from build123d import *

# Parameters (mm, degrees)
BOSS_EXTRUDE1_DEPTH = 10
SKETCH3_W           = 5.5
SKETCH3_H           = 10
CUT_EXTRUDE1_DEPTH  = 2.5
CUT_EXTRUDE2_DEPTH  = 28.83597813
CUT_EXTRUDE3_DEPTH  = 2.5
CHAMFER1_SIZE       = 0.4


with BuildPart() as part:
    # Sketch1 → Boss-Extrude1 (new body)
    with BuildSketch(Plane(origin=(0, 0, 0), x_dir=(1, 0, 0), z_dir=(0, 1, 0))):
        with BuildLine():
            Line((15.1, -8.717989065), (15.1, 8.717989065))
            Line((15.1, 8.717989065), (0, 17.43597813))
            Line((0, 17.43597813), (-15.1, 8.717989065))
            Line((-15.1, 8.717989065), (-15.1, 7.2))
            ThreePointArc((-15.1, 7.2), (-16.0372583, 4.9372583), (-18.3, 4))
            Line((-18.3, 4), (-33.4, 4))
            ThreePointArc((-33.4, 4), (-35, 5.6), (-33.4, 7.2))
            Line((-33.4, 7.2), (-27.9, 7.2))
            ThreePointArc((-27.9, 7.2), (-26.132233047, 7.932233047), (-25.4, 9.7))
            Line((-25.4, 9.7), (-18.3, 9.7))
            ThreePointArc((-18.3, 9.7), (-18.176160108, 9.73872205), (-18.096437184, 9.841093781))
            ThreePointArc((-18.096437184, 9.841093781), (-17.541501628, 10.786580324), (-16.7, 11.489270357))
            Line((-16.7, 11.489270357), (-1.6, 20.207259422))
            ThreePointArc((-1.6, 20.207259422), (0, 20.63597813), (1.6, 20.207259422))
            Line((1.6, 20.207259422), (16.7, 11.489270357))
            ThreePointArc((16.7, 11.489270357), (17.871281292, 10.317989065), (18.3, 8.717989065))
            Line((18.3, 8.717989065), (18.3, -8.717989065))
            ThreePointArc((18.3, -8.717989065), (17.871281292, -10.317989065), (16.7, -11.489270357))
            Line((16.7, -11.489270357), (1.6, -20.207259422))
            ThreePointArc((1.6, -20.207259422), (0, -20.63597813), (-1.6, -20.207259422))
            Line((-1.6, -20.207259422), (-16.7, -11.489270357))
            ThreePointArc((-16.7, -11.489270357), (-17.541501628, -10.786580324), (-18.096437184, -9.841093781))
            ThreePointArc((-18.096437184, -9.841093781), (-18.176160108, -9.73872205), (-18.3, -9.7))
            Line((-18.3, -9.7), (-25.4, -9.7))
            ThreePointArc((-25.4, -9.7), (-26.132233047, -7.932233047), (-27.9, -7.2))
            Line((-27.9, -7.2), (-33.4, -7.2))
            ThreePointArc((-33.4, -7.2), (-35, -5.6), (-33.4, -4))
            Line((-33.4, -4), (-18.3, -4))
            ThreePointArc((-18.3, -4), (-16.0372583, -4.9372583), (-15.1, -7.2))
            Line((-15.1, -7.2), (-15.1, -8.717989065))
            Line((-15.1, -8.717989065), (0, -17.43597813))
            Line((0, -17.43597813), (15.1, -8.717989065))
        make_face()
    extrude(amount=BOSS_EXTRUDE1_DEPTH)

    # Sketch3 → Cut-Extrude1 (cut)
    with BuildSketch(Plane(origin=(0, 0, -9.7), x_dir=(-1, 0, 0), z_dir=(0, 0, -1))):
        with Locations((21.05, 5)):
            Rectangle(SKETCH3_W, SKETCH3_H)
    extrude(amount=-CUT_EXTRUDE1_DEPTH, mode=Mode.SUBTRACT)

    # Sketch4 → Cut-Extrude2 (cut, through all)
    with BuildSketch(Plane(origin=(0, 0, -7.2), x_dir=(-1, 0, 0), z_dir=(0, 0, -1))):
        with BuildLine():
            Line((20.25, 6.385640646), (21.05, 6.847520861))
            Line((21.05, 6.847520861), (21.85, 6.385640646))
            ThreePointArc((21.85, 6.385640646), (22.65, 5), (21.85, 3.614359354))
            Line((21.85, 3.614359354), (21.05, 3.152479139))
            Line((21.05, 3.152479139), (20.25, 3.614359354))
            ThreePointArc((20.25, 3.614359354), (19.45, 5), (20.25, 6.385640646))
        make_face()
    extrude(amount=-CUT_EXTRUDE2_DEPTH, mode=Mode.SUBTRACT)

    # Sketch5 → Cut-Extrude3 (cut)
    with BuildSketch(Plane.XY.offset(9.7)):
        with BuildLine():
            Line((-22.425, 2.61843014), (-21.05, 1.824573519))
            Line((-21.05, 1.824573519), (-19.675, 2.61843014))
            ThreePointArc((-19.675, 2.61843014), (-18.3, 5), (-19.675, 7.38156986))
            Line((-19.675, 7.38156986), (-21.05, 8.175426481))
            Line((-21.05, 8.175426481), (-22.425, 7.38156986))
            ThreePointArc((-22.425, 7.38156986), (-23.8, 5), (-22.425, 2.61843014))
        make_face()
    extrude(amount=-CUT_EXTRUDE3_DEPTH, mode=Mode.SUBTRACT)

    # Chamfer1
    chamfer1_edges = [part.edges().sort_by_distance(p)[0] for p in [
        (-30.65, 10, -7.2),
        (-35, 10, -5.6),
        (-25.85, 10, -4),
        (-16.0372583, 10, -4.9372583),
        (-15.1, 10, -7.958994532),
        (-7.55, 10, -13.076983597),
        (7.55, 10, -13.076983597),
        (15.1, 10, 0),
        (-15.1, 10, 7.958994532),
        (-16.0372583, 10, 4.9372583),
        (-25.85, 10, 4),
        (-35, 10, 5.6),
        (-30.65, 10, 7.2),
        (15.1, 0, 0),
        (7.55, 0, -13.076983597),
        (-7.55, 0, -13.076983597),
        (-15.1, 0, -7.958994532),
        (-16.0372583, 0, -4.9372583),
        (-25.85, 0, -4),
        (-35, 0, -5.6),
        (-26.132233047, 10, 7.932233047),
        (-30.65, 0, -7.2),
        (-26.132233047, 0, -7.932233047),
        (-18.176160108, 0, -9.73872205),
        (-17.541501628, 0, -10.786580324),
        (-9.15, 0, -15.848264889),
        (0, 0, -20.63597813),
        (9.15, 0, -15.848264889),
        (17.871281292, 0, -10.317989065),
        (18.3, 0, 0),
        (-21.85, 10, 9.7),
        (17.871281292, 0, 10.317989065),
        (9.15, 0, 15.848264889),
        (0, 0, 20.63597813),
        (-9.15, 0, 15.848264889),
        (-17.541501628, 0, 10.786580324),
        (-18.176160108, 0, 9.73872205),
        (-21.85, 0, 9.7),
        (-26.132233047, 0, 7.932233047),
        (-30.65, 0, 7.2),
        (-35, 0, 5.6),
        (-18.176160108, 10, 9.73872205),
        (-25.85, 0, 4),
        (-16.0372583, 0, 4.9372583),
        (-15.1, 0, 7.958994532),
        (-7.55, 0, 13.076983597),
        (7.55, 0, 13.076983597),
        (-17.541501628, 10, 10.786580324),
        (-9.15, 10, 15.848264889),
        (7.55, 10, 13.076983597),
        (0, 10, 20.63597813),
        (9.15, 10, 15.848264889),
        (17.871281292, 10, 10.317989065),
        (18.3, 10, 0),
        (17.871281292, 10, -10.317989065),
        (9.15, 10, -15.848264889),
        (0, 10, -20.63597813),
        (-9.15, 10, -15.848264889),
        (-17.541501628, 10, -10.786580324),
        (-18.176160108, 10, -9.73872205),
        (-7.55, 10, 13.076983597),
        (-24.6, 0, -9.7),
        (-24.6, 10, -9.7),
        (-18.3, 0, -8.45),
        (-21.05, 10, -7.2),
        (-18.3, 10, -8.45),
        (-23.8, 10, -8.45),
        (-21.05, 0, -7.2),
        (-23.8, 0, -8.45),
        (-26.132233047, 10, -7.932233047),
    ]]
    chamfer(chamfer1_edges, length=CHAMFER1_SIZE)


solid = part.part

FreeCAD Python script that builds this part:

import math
import FreeCAD as App
import Part
import Sketcher
from FreeCAD import Vector
Q = App.Units.Quantity


def edges_at(feature, points):
    """Names of the edges that pass closest to the given points."""
    edges = feature.Shape.Edges
    near = lambda p: min(range(len(edges)), key=lambda i: edges[i].distToShape(Part.Vertex(*p))[0])
    return sorted({f"Edge{near(p) + 1}" for p in points})

doc = App.newDocument("Part")
body = doc.addObject("PartDesign::Body", "Body")

# Sketch on XZ plane
sketch1 = body.newObject("Sketcher::SketchObject", "Sketch")
sketch1.AttachmentSupport = (doc.getObject("XZ_Plane"), [""])
sketch1.MapMode = "FlatFace"
sketch1.addGeometry([
    Part.LineSegment(Vector(15.1, -8.717989, 0), Vector(15.1, 8.717989, 0)),  # 0
    Part.LineSegment(Vector(15.1, 8.717989, 0), Vector(0, 17.435978, 0)),  # 1
    Part.LineSegment(Vector(0, 17.435978, 0), Vector(-15.1, 8.717989, 0)),  # 2
    Part.LineSegment(Vector(-15.1, 8.717989, 0), Vector(-15.1, 7.2, 0)),  # 3
    Part.ArcOfCircle(Part.Circle(Vector(-18.3, 7.2, 0), Vector(0, 0, 1), 3.2), math.radians(-90), math.radians(0)),  # 4
    Part.LineSegment(Vector(-18.3, 4, 0), Vector(-33.4, 4, 0)),  # 5
    Part.ArcOfCircle(Part.Circle(Vector(-33.4, 5.6, 0), Vector(0, 0, 1), 1.6), math.radians(90), math.radians(270)),  # 6
    Part.LineSegment(Vector(-33.4, 7.2, 0), Vector(-27.9, 7.2, 0)),  # 7
    Part.ArcOfCircle(Part.Circle(Vector(-27.9, 9.7, 0), Vector(0, 0, 1), 2.5), math.radians(-90), math.radians(0)),  # 8
    Part.LineSegment(Vector(-25.4, 9.7, 0), Vector(-18.3, 9.7, 0)),  # 9
    Part.ArcOfCircle(Part.Circle(Vector(-18.3, 9.917392, 0), Vector(0, 0, 1), 0.217392), math.radians(-90), math.radians(-20.54667)),  # 10
    Part.ArcOfCircle(Part.Circle(Vector(-15.1, 8.717989, 0), Vector(0, 0, 1), 3.2), math.radians(120), math.radians(159.45333)),  # 11
    Part.LineSegment(Vector(-16.7, 11.48927, 0), Vector(-1.6, 20.207259, 0)),  # 12
    Part.ArcOfCircle(Part.Circle(Vector(0, 17.435978, 0), Vector(0, 0, 1), 3.2), math.radians(60), math.radians(120)),  # 13
    Part.LineSegment(Vector(1.6, 20.207259, 0), Vector(16.7, 11.48927, 0)),  # 14
    Part.ArcOfCircle(Part.Circle(Vector(15.1, 8.717989, 0), Vector(0, 0, 1), 3.2), math.radians(0), math.radians(60)),  # 15
    Part.LineSegment(Vector(18.3, 8.717989, 0), Vector(18.3, -8.717989, 0)),  # 16
    Part.ArcOfCircle(Part.Circle(Vector(15.1, -8.717989, 0), Vector(0, 0, 1), 3.2), math.radians(-60), math.radians(0)),  # 17
    Part.LineSegment(Vector(16.7, -11.48927, 0), Vector(1.6, -20.207259, 0)),  # 18
    Part.ArcOfCircle(Part.Circle(Vector(0, -17.435978, 0), Vector(0, 0, 1), 3.2), math.radians(-120), math.radians(-60)),  # 19
    Part.LineSegment(Vector(-1.6, -20.207259, 0), Vector(-16.7, -11.48927, 0)),  # 20
    Part.ArcOfCircle(Part.Circle(Vector(-15.1, -8.717989, 0), Vector(0, 0, 1), 3.2), math.radians(-159.45333), math.radians(-120)),  # 21
    Part.ArcOfCircle(Part.Circle(Vector(-18.3, -9.917392, 0), Vector(0, 0, 1), 0.217392), math.radians(20.54667), math.radians(90)),  # 22
    Part.LineSegment(Vector(-18.3, -9.7, 0), Vector(-25.4, -9.7, 0)),  # 23
    Part.ArcOfCircle(Part.Circle(Vector(-27.9, -9.7, 0), Vector(0, 0, 1), 2.5), math.radians(0), math.radians(90)),  # 24
    Part.LineSegment(Vector(-27.9, -7.2, 0), Vector(-33.4, -7.2, 0)),  # 25
    Part.ArcOfCircle(Part.Circle(Vector(-33.4, -5.6, 0), Vector(0, 0, 1), 1.6), math.radians(90), math.radians(270)),  # 26
    Part.LineSegment(Vector(-33.4, -4, 0), Vector(-18.3, -4, 0)),  # 27
    Part.ArcOfCircle(Part.Circle(Vector(-18.3, -7.2, 0), Vector(0, 0, 1), 3.2), math.radians(0), math.radians(90)),  # 28
    Part.LineSegment(Vector(-15.1, -7.2, 0), Vector(-15.1, -8.717989, 0)),  # 29
    Part.LineSegment(Vector(-15.1, -8.717989, 0), Vector(0, -17.435978, 0)),  # 30
    Part.LineSegment(Vector(0, -17.435978, 0), Vector(15.1, -8.717989, 0)),  # 31
], False)
sketch1.addConstraint([
    Sketcher.Constraint("Coincident", 0, 2, 1, 1),
    Sketcher.Constraint("Coincident", 1, 2, 2, 1),
    Sketcher.Constraint("Coincident", 2, 2, 3, 1),
    Sketcher.Constraint("Tangent", 3, 2, 4, 2),
    Sketcher.Constraint("Tangent", 4, 1, 5, 1),
    Sketcher.Constraint("Tangent", 5, 2, 6, 2),
    Sketcher.Constraint("Tangent", 6, 1, 7, 1),
    Sketcher.Constraint("Tangent", 7, 2, 8, 1),
    Sketcher.Constraint("Coincident", 8, 2, 9, 1),
    Sketcher.Constraint("Tangent", 9, 2, 10, 1),
    Sketcher.Constraint("Tangent", 10, 2, 11, 2),
    Sketcher.Constraint("Tangent", 11, 1, 12, 1),
    Sketcher.Constraint("Tangent", 12, 2, 13, 2),
    Sketcher.Constraint("Tangent", 13, 1, 14, 1),
    Sketcher.Constraint("Tangent", 14, 2, 15, 2),
    Sketcher.Constraint("Tangent", 15, 1, 16, 1),
    Sketcher.Constraint("Tangent", 16, 2, 17, 2),
    Sketcher.Constraint("Tangent", 17, 1, 18, 1),
    Sketcher.Constraint("Tangent", 18, 2, 19, 2),
    Sketcher.Constraint("Tangent", 19, 1, 20, 1),
    Sketcher.Constraint("Tangent", 20, 2, 21, 2),
    Sketcher.Constraint("Tangent", 21, 1, 22, 1),
    Sketcher.Constraint("Tangent", 22, 2, 23, 1),
    Sketcher.Constraint("Coincident", 23, 2, 24, 1),
    Sketcher.Constraint("Tangent", 24, 2, 25, 1),
    Sketcher.Constraint("Tangent", 25, 2, 26, 2),
    Sketcher.Constraint("Tangent", 26, 1, 27, 1),
    Sketcher.Constraint("Tangent", 27, 2, 28, 2),
    Sketcher.Constraint("Tangent", 28, 1, 29, 1),
    Sketcher.Constraint("Coincident", 29, 2, 30, 1),
    Sketcher.Constraint("Coincident", 30, 2, 31, 1),
    Sketcher.Constraint("Coincident", 31, 2, 0, 1),
    Sketcher.Constraint("Vertical", 0),
    Sketcher.Constraint("Vertical", 3),
    Sketcher.Constraint("Horizontal", 5),
    Sketcher.Constraint("Horizontal", 7),
    Sketcher.Constraint("Horizontal", 9),
    Sketcher.Constraint("Vertical", 16),
    Sketcher.Constraint("Horizontal", 23),
    Sketcher.Constraint("Horizontal", 25),
    Sketcher.Constraint("Horizontal", 27),
    Sketcher.Constraint("Vertical", 29),
    Sketcher.Constraint("Coincident", 0, 2, 15, 3),
    Sketcher.Constraint("Coincident", 1, 2, 13, 3),
    Sketcher.Constraint("Coincident", 2, 2, 11, 3),
    Sketcher.Constraint("Coincident", 29, 2, 21, 3),
    Sketcher.Constraint("Coincident", 30, 2, 19, 3),
    Sketcher.Constraint("Coincident", 31, 2, 17, 3),
    Sketcher.Constraint("Equal", 4, 11),
    Sketcher.Constraint("Equal", 11, 13),
    Sketcher.Constraint("Equal", 13, 15),
    Sketcher.Constraint("Equal", 17, 19),
    Sketcher.Constraint("Equal", 19, 21),
    Sketcher.Constraint("Equal", 10, 22),
    Sketcher.Constraint("Equal", 8, 24),
    Sketcher.Constraint("Equal", 6, 26),
    Sketcher.Constraint("Equal", 21, 28),
    Sketcher.Constraint("Symmetric", 11, 3, 17, 3, -1, 1),
    Sketcher.Constraint("Symmetric", 13, 3, 19, 3, -1, 1),
    Sketcher.Constraint("Symmetric", 15, 3, 21, 3, -1, 1),
    Sketcher.Constraint("Symmetric", 12, 2, 13, 1, -2),
    Sketcher.Constraint("Symmetric", 8, 3, 24, 3, -1),
    Sketcher.Constraint("Horizontal", 3, 2, 6, 1),
    Sketcher.Constraint("Horizontal", 24, 3, 22, 2),
    Sketcher.Constraint("Vertical", 4, 3, 10, 3),
    Sketcher.Constraint("Vertical", 10, 3, 22, 3),
    Sketcher.Constraint("Vertical", 6, 3, 26, 3),
    Sketcher.Constraint("Radius", 4, Q("3.2 mm")),
    Sketcher.Constraint("Radius", 8, Q("2.5 mm")),
    Sketcher.Constraint("Angle", 1, Q("150 deg")),
    Sketcher.Constraint("DistanceX", 5, 2, 5, 1, Q("15.1 mm")),
    Sketcher.Constraint("DistanceX", 7, 1, 7, 2, Q("5.5 mm")),
    Sketcher.Constraint("DistanceY", -1, 1, 4, 1, Q("4 mm")),
    Sketcher.Constraint("DistanceX", 8, 3, 15, 3, Q("43 mm")),
    Sketcher.Constraint("Radius", 10, Q("0.217392 mm")),
])
pad1 = body.newObject("PartDesign::Pad", "Pad")
pad1.Profile = sketch1
pad1.Length = 10
pad1.Reversed = True

# Sketch on XY plane
sketch2 = body.newObject("Sketcher::SketchObject", "Sketch001")
sketch2.AttachmentSupport = (doc.getObject("XY_Plane"), [""])
sketch2.MapMode = "FlatFace"
sketch2.AttachmentOffset = App.Placement(Vector(0, 0, -9.7), App.Rotation())
sketch2.addGeometry([
    Part.LineSegment(Vector(-18.3, 10, 0), Vector(-18.3, 0, 0)),
    Part.LineSegment(Vector(-18.3, 0, 0), Vector(-23.8, 0, 0)),
    Part.LineSegment(Vector(-23.8, 0, 0), Vector(-23.8, 10, 0)),
    Part.LineSegment(Vector(-23.8, 10, 0), Vector(-18.3, 10, 0)),
], False)
sketch2.addConstraint([
    Sketcher.Constraint("Coincident", 0, 2, 1, 1),
    Sketcher.Constraint("Coincident", 1, 2, 2, 1),
    Sketcher.Constraint("Coincident", 2, 2, 3, 1),
    Sketcher.Constraint("Coincident", 3, 2, 0, 1),
    Sketcher.Constraint("Vertical", 0),
    Sketcher.Constraint("Horizontal", 1),
    Sketcher.Constraint("Vertical", 2),
    Sketcher.Constraint("Horizontal", 3),
    Sketcher.Constraint("PointOnObject", 0, 2, -1),
    Sketcher.Constraint("DistanceY", 0, 2, 0, 1, Q("10 mm")),
    Sketcher.Constraint("DistanceX", 1, 2, 1, 1, Q("5.5 mm")),
    Sketcher.Constraint("DistanceX", 0, 2, -1, 1, Q("18.3 mm")),
])
pocket1 = body.newObject("PartDesign::Pocket", "Pocket")
pocket1.Profile = sketch2
pocket1.Length = 2.5
pocket1.Reversed = True

# Sketch on XY plane
sketch3 = body.newObject("Sketcher::SketchObject", "Sketch002")
sketch3.AttachmentSupport = (doc.getObject("XY_Plane"), [""])
sketch3.MapMode = "FlatFace"
sketch3.AttachmentOffset = App.Placement(Vector(0, 0, -7.2), App.Rotation())
sketch3.addGeometry([
    Part.LineSegment(Vector(-21.05, 6.847521, 0), Vector(-20.25, 6.385641, 0)),  # 0
    Part.ArcOfCircle(Part.Circle(Vector(-21.05, 5, 0), Vector(0, 0, 1), 1.6), math.radians(-60), math.radians(60)),  # 1
    Part.LineSegment(Vector(-20.25, 3.614359, 0), Vector(-21.05, 3.152479, 0)),  # 2
    Part.LineSegment(Vector(-21.05, 3.152479, 0), Vector(-21.85, 3.614359, 0)),  # 3
    Part.ArcOfCircle(Part.Circle(Vector(-21.05, 5, 0), Vector(0, 0, 1), 1.6), math.radians(120), math.radians(240)),  # 4
    Part.LineSegment(Vector(-21.85, 6.385641, 0), Vector(-21.05, 6.847521, 0)),  # 5
], False)
sketch3.addConstraint([
    Sketcher.Constraint("Tangent", 0, 2, 1, 2),
    Sketcher.Constraint("Tangent", 1, 1, 2, 1),
    Sketcher.Constraint("Coincident", 2, 2, 3, 1),
    Sketcher.Constraint("Tangent", 3, 2, 4, 2),
    Sketcher.Constraint("Tangent", 4, 1, 5, 1),
    Sketcher.Constraint("Coincident", 5, 2, 0, 1),
    Sketcher.Constraint("Coincident", 4, 3, 1, 3),
    Sketcher.Constraint("Equal", 1, 4),
    Sketcher.Constraint("Parallel", 0, 3),
    Sketcher.Constraint("Parallel", 2, 5),
    Sketcher.Constraint("Horizontal", 1, 1, 3, 2),
    Sketcher.Constraint("Radius", 1, Q("1.6 mm")),
    Sketcher.Constraint("Angle", 0, Q("-30 deg")),
    Sketcher.Constraint("DistanceY", -1, 1, 1, 3, Q("5 mm")),
    Sketcher.Constraint("DistanceX", 1, 3, -1, 1, Q("21.05 mm")),
])
pocket2 = body.newObject("PartDesign::Pocket", "Pocket001")
pocket2.Profile = sketch3
pocket2.Type = "ThroughAll"
pocket2.Reversed = True

# Sketch on XY plane
sketch4 = body.newObject("Sketcher::SketchObject", "Sketch003")
sketch4.AttachmentSupport = (doc.getObject("XY_Plane"), [""])
sketch4.MapMode = "FlatFace"
sketch4.AttachmentOffset = App.Placement(Vector(0, 0, 9.7), App.Rotation())
sketch4.addGeometry([
    Part.LineSegment(Vector(-22.425, 2.61843, 0), Vector(-21.05, 1.824574, 0)),  # 0
    Part.LineSegment(Vector(-21.05, 1.824574, 0), Vector(-19.675, 2.61843, 0)),  # 1
    Part.ArcOfCircle(Part.Circle(Vector(-21.05, 5, 0), Vector(0, 0, 1), 2.75), math.radians(-60), math.radians(60)),  # 2
    Part.LineSegment(Vector(-19.675, 7.38157, 0), Vector(-21.05, 8.175426, 0)),  # 3
    Part.LineSegment(Vector(-21.05, 8.175426, 0), Vector(-22.425, 7.38157, 0)),  # 4
    Part.ArcOfCircle(Part.Circle(Vector(-21.05, 5, 0), Vector(0, 0, 1), 2.75), math.radians(120), math.radians(240)),  # 5
], False)
sketch4.addConstraint([
    Sketcher.Constraint("Coincident", 0, 2, 1, 1),
    Sketcher.Constraint("Tangent", 1, 2, 2, 1),
    Sketcher.Constraint("Tangent", 2, 2, 3, 1),
    Sketcher.Constraint("Coincident", 3, 2, 4, 1),
    Sketcher.Constraint("Tangent", 4, 2, 5, 1),
    Sketcher.Constraint("Tangent", 5, 2, 0, 1),
    Sketcher.Constraint("Coincident", 5, 3, 2, 3),
    Sketcher.Constraint("Equal", 2, 5),
    Sketcher.Constraint("Parallel", 0, 3),
    Sketcher.Constraint("Parallel", 1, 4),
    Sketcher.Constraint("Horizontal", 2, 2, 4, 2),
    Sketcher.Constraint("Angle", 0, Q("-30 deg")),
    Sketcher.Constraint("Radius", 2, Q("2.75 mm")),
    Sketcher.Constraint("DistanceY", -1, 1, 2, 3, Q("5 mm")),
    Sketcher.Constraint("DistanceX", 2, 3, -1, 1, Q("21.05 mm")),
])
pocket3 = body.newObject("PartDesign::Pocket", "Pocket002")
pocket3.Profile = sketch4
pocket3.Length = 2.5
doc.recompute()

chamfer = body.newObject("PartDesign::Chamfer", "Chamfer")
chamfer.Base = (pocket3, edges_at(pocket3, [
    (-30.65, 10, -7.2),
    (-35, 10, -5.6),
    (-25.85, 10, -4),
    (-16.037, 10, -4.937),
    (-15.1, 10, -7.959),
    (-7.55, 10, -13.077),
    (7.55, 10, -13.077),
    (15.1, 10, 0),
    (-15.1, 10, 7.959),
    (-16.037, 10, 4.937),
    (-25.85, 10, 4),
    (-35, 10, 5.6),
    (-30.65, 10, 7.2),
    (15.1, 0, 0),
    (7.55, 0, -13.077),
    (-7.55, 0, -13.077),
    (-15.1, 0, -7.959),
    (-16.037, 0, -4.937),
    (-25.85, 0, -4),
    (-35, 0, -5.6),
    (-26.132, 10, 7.932),
    (-30.65, 0, -7.2),
    (-26.132, 0, -7.932),
    (-18.176, 0, -9.739),
    (-17.542, 0, -10.787),
    (-9.15, 0, -15.848),
    (0, 0, -20.636),
    (9.15, 0, -15.848),
    (17.871, 0, -10.318),
    (18.3, 0, 0),
    (-21.85, 10, 9.7),
    (17.871, 0, 10.318),
    (9.15, 0, 15.848),
    (0, 0, 20.636),
    (-9.15, 0, 15.848),
    (-17.542, 0, 10.787),
    (-18.176, 0, 9.739),
    (-21.85, 0, 9.7),
    (-26.132, 0, 7.932),
    (-30.65, 0, 7.2),
    (-35, 0, 5.6),
    (-18.176, 10, 9.739),
    (-25.85, 0, 4),
    (-16.037, 0, 4.937),
    (-15.1, 0, 7.959),
    (-7.55, 0, 13.077),
    (7.55, 0, 13.077),
    (-17.542, 10, 10.787),
    (-9.15, 10, 15.848),
    (7.55, 10, 13.077),
    (0, 10, 20.636),
    (9.15, 10, 15.848),
    (17.871, 10, 10.318),
    (18.3, 10, 0),
    (17.871, 10, -10.318),
    (9.15, 10, -15.848),
    (0, 10, -20.636),
    (-9.15, 10, -15.848),
    (-17.542, 10, -10.787),
    (-18.176, 10, -9.739),
    (-7.55, 10, 13.077),
    (-24.6, 0, -9.7),
    (-24.6, 10, -9.7),
    (-18.3, 0, -8.45),
    (-21.05, 10, -7.2),
    (-18.3, 10, -8.45),
    (-23.8, 10, -8.45),
    (-21.05, 0, -7.2),
    (-23.8, 0, -8.45),
    (-26.132, 10, -7.932),
]))
chamfer.Size = 0.4

doc.recompute()
